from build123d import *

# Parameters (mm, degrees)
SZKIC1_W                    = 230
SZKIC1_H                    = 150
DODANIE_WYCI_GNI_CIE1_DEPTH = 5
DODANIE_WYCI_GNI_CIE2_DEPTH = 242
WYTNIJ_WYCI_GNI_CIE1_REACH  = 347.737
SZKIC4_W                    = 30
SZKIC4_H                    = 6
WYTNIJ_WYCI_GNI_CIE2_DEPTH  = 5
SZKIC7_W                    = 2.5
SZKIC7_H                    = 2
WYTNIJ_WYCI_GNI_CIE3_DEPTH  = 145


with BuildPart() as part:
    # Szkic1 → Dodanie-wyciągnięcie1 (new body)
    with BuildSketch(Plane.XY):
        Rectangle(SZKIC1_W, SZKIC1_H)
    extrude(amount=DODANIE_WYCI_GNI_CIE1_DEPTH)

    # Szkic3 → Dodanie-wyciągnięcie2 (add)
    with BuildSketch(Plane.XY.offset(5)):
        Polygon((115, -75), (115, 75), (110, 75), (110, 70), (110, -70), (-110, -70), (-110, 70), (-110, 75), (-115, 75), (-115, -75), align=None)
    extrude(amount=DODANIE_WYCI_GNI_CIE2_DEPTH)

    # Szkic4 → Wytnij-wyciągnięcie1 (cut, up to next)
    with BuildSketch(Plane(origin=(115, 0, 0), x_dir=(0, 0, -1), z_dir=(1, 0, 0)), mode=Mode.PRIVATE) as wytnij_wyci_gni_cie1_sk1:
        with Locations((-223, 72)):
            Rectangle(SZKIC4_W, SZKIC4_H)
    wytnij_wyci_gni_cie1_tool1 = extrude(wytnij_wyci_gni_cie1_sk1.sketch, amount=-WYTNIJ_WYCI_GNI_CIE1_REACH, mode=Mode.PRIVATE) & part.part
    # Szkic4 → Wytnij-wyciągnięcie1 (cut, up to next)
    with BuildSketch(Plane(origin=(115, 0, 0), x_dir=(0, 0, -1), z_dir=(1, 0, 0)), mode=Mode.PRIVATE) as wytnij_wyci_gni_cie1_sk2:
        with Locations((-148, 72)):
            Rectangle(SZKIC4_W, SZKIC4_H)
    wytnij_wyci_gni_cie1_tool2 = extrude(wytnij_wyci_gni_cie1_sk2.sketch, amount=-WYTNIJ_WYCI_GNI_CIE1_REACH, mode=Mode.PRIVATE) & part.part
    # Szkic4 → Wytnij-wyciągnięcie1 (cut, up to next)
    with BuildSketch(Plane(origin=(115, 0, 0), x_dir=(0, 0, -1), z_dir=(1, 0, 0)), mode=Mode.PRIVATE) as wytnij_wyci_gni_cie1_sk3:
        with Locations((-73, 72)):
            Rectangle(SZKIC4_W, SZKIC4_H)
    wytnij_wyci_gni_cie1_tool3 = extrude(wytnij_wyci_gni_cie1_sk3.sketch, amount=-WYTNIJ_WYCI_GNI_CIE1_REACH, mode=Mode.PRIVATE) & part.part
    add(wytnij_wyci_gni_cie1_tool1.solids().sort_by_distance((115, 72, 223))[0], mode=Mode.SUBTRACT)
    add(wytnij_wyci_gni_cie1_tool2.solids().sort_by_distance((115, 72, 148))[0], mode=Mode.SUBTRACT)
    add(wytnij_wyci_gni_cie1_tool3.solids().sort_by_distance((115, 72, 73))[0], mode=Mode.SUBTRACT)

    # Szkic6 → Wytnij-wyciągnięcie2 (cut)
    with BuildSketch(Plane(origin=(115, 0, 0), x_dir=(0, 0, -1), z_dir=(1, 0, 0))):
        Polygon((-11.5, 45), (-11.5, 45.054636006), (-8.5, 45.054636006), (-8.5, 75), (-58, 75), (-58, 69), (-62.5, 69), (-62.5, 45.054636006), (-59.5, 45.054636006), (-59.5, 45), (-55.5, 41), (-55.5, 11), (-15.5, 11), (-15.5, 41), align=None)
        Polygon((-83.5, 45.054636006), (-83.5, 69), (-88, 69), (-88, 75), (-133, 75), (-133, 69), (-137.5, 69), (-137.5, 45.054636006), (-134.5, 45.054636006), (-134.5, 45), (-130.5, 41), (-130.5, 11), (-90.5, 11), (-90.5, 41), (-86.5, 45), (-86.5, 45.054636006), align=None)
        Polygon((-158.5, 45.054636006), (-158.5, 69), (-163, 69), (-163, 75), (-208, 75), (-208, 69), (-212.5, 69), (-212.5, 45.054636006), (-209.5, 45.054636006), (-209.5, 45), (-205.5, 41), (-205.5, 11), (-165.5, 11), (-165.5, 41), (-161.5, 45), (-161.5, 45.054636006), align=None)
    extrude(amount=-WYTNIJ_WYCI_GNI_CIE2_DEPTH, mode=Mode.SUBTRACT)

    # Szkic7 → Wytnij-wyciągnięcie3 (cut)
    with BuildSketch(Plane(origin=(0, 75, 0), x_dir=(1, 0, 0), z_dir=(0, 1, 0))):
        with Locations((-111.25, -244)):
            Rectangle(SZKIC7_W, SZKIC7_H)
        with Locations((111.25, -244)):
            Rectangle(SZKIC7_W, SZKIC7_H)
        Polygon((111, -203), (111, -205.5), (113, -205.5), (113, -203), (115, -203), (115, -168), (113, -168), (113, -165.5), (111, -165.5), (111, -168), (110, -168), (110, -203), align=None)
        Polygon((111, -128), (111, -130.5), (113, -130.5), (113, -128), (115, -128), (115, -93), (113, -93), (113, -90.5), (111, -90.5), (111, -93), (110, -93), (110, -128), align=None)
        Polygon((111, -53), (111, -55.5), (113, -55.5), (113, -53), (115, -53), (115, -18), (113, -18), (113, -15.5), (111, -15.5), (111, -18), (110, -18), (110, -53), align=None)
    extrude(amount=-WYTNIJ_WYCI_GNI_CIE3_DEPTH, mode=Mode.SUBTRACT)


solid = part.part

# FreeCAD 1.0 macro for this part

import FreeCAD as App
import Part
import Sketcher
from FreeCAD import Vector


def add_polygon(sketch, points):
    """Adds a closed chain of lines whose ends are joined by coincident constraints."""
    first, n = sketch.GeometryCount, len(points)
    for a, b in zip(points, points[1:] + points[:1]):
        sketch.addGeometry(Part.LineSegment(App.Vector(*a, 0), App.Vector(*b, 0)), False)
    for i in range(n):
        sketch.addConstraint(Sketcher.Constraint("Coincident", first + i, 2, first + (i + 1) % n, 1))

doc = App.newDocument("Part")
body = doc.addObject("PartDesign::Body", "Body")

sketch1 = doc.addObject("Sketcher::SketchObject", "Sketch")
body.addObject(sketch1)
sketch1.AttachmentSupport = (doc.XY_Plane, [""])
sketch1.MapMode = "FlatFace"
add_polygon(sketch1, [(-115, 75), (-115, -75), (115, -75), (115, 75)])
sketch1.addConstraint([
    Sketcher.Constraint("Vertical", 0),
    Sketcher.Constraint("Horizontal", 1),
    Sketcher.Constraint("Vertical", 2),
    Sketcher.Constraint("Horizontal", 3),
    Sketcher.Constraint("Symmetric", 0, 2, 2, 2, -1, 1),
    Sketcher.Constraint("DistanceX", 1, 1, 1, 2, 230.0),
    Sketcher.Constraint("DistanceY", 0, 2, 0, 1, 150.0),
])
pad1 = doc.addObject("PartDesign::Pad", "Pad")
body.addObject(pad1)
pad1.Profile = sketch1
pad1.Length = 5

sketch2 = doc.addObject("Sketcher::SketchObject", "Sketch001")
body.addObject(sketch2)
sketch2.AttachmentSupport = (doc.XY_Plane, [""])
sketch2.MapMode = "FlatFace"
sketch2.AttachmentOffset = App.Placement(Vector(0, 0, 5), App.Rotation())
add_polygon(sketch2, [(115, -75), (115, 75), (110, 75), (110, -70), (-110, -70), (-110, 75), (-115, 75), (-115, -75)])
sketch2.addConstraint([
    Sketcher.Constraint("Vertical", 0),
    Sketcher.Constraint("Horizontal", 1),
    Sketcher.Constraint("Vertical", 2),
    Sketcher.Constraint("Horizontal", 3),
    Sketcher.Constraint("Vertical", 4),
    Sketcher.Constraint("Horizontal", 5),
    Sketcher.Constraint("Vertical", 6),
    Sketcher.Constraint("Horizontal", 7),
    Sketcher.Constraint("Symmetric", 0, 2, 6, 2, -1, 1),
    Sketcher.Constraint("Symmetric", 1, 2, 4, 2, -2),
    Sketcher.Constraint("DistanceX", 1, 2, 1, 1, 5.0),
    Sketcher.Constraint("DistanceX", 3, 2, 3, 1, 220.0),
    Sketcher.Constraint("DistanceY", 0, 1, 0, 2, 150.0),
    Sketcher.Constraint("DistanceY", 2, 2, 2, 1, 145.0),
])
pad2 = doc.addObject("PartDesign::Pad", "Pad001")
body.addObject(pad2)
pad2.Profile = sketch2
pad2.Length = 242

sketch3 = doc.addObject("Sketcher::SketchObject", "Sketch002")
body.addObject(sketch3)
sketch3.AttachmentSupport = (doc.YZ_Plane, [""])
sketch3.MapMode = "FlatFace"
sketch3.AttachmentOffset = App.Placement(Vector(0, 0, 115), App.Rotation())
add_polygon(sketch3, [(75, 238), (69, 238), (69, 208), (75, 208)])
sketch3.addConstraint([
    Sketcher.Constraint("Horizontal", 0),
    Sketcher.Constraint("Vertical", 1),
    Sketcher.Constraint("Horizontal", 2),
    Sketcher.Constraint("Vertical", 3),
    Sketcher.Constraint("DistanceX", 0, 2, 0, 1, 6.0),
    Sketcher.Constraint("DistanceY", 1, 2, 1, 1, 30.0),
    Sketcher.Constraint("DistanceX", -1, 1, 0, 2, 69.0),
    Sketcher.Constraint("DistanceY", -1, 1, 0, 2, 238.0),
])
pocket1 = doc.addObject("PartDesign::Pocket", "Pocket")
body.addObject(pocket1)
pocket1.Profile = sketch3
pocket1.Type = "UpToFirst"

sketch4 = doc.addObject("Sketcher::SketchObject", "Sketch003")
body.addObject(sketch4)
sketch4.AttachmentSupport = (doc.YZ_Plane, [""])
sketch4.MapMode = "FlatFace"
sketch4.AttachmentOffset = App.Placement(Vector(0, 0, 115), App.Rotation())
add_polygon(sketch4, [(75, 163), (69, 163), (69, 133), (75, 133)])
sketch4.addConstraint([
    Sketcher.Constraint("Horizontal", 0),
    Sketcher.Constraint("Vertical", 1),
    Sketcher.Constraint("Horizontal", 2),
    Sketcher.Constraint("Vertical", 3),
    Sketcher.Constraint("DistanceX", 0, 2, 0, 1, 6.0),
    Sketcher.Constraint("DistanceY", 1, 2, 1, 1, 30.0),
    Sketcher.Constraint("DistanceX", -1, 1, 0, 2, 69.0),
    Sketcher.Constraint("DistanceY", -1, 1, 0, 2, 163.0),
])
pocket2 = doc.addObject("PartDesign::Pocket", "Pocket001")
body.addObject(pocket2)
pocket2.Profile = sketch4
pocket2.Type = "UpToFirst"

sketch5 = doc.addObject("Sketcher::SketchObject", "Sketch004")
body.addObject(sketch5)
sketch5.AttachmentSupport = (doc.YZ_Plane, [""])
sketch5.MapMode = "FlatFace"
sketch5.AttachmentOffset = App.Placement(Vector(0, 0, 115), App.Rotation())
add_polygon(sketch5, [(75, 88), (69, 88), (69, 58), (75, 58)])
sketch5.addConstraint([
    Sketcher.Constraint("Horizontal", 0),
    Sketcher.Constraint("Vertical", 1),
    Sketcher.Constraint("Horizontal", 2),
    Sketcher.Constraint("Vertical", 3),
    Sketcher.Constraint("DistanceX", 0, 2, 0, 1, 6.0),
    Sketcher.Constraint("DistanceY", 1, 2, 1, 1, 30.0),
    Sketcher.Constraint("DistanceX", -1, 1, 0, 2, 69.0),
    Sketcher.Constraint("DistanceY", -1, 1, 0, 2, 88.0),
])
pocket3 = doc.addObject("PartDesign::Pocket", "Pocket002")
body.addObject(pocket3)
pocket3.Profile = sketch5
pocket3.Type = "UpToFirst"

sketch6 = doc.addObject("Sketcher::SketchObject", "Sketch005")
body.addObject(sketch6)
sketch6.AttachmentSupport = (doc.YZ_Plane, [""])
sketch6.MapMode = "FlatFace"
sketch6.AttachmentOffset = App.Placement(Vector(0, 0, 115), App.Rotation())
add_polygon(sketch6, [(45, 11.5), (45.054636, 11.5), (45.054636, 8.5), (75, 8.5), (75, 58), (69, 58), (69, 62.5), (45.054636, 62.5), (45.054636, 59.5), (45, 59.5), (41, 55.5), (11, 55.5), (11, 15.5), (41, 15.5)])
add_polygon(sketch6, [(45.054636, 83.5), (69, 83.5), (69, 88), (75, 88), (75, 133), (69, 133), (69, 137.5), (45.054636, 137.5), (45.054636, 134.5), (45, 134.5), (41, 130.5), (11, 130.5), (11, 90.5), (41, 90.5), (45, 86.5), (45.054636, 86.5)])
add_polygon(sketch6, [(45.054636, 158.5), (69, 158.5), (69, 163), (75, 163), (75, 208), (69, 208), (69, 212.5), (45.054636, 212.5), (45.054636, 209.5), (45, 209.5), (41, 205.5), (11, 205.5), (11, 165.5), (41, 165.5), (45, 161.5), (45.054636, 161.5)])
sketch6.addConstraint([
    Sketcher.Constraint("Horizontal", 0),
    Sketcher.Constraint("Vertical", 1),
    Sketcher.Constraint("Horizontal", 2),
    Sketcher.Constraint("Vertical", 3),
    Sketcher.Constraint("Horizontal", 4),
    Sketcher.Constraint("Vertical", 5),
    Sketcher.Constraint("Horizontal", 6),
    Sketcher.Constraint("Vertical", 7),
    Sketcher.Constraint("Horizontal", 8),
    Sketcher.Constraint("Horizontal", 10),
    Sketcher.Constraint("Vertical", 11),
    Sketcher.Constraint("Horizontal", 12),
    Sketcher.Constraint("Horizontal", 14),
    Sketcher.Constraint("Vertical", 15),
    Sketcher.Constraint("Horizontal", 16),
    Sketcher.Constraint("Vertical", 17),
    Sketcher.Constraint("Horizontal", 18),
    Sketcher.Constraint("Vertical", 19),
    Sketcher.Constraint("Horizontal", 20),
    Sketcher.Constraint("Vertical", 21),
    Sketcher.Constraint("Horizontal", 22),
    Sketcher.Constraint("Horizontal", 24),
    Sketcher.Constraint("Vertical", 25),
    Sketcher.Constraint("Horizontal", 26),
    Sketcher.Constraint("Horizontal", 28),
    Sketcher.Constraint("Vertical", 29),
    Sketcher.Constraint("Horizontal", 30),
    Sketcher.Constraint("Vertical", 31),
    Sketcher.Constraint("Horizontal", 32),
    Sketcher.Constraint("Vertical", 33),
    Sketcher.Constraint("Horizontal", 34),
    Sketcher.Constraint("Vertical", 35),
    Sketcher.Constraint("Horizontal", 36),
    Sketcher.Constraint("Vertical", 37),
    Sketcher.Constraint("Horizontal", 38),
    Sketcher.Constraint("Horizontal", 40),
    Sketcher.Constraint("Vertical", 41),
    Sketcher.Constraint("Horizontal", 42),
    Sketcher.Constraint("Horizontal", 44),
    Sketcher.Constraint("Vertical", 45),
    Sketcher.Constraint("Perpendicular", 9, 13),
    Sketcher.Constraint("Perpendicular", 13, 23),
    Sketcher.Constraint("Perpendicular", 23, 27),
    Sketcher.Constraint("Perpendicular", 27, 39),
    Sketcher.Constraint("Perpendicular", 39, 43),
    Sketcher.Constraint("Vertical", 1, 2, 6, 2),
    Sketcher.Constraint("Vertical", 9, 2, 12, 2),
    Sketcher.Constraint("Vertical", 8, 2, 13, 2),
    Sketcher.Constraint("Vertical", 5, 2, 14, 2),
    Sketcher.Constraint("Vertical", 3, 2, 16, 2),
    Sketcher.Constraint("Vertical", 15, 2, 18, 2),
    Sketcher.Constraint("Vertical", 7, 2, 20, 2),
    Sketcher.Constraint("Vertical", 13, 2, 22, 2),
    Sketcher.Constraint("Vertical", 12, 2, 23, 2),
    Sketcher.Constraint("Vertical", 11, 2, 24, 2),
    Sketcher.Constraint("Vertical", 23, 2, 26, 2),
    Sketcher.Constraint("Vertical", 22, 2, 27, 2),
    Sketcher.Constraint("Vertical", 21, 2, 28, 2),
    Sketcher.Constraint("Vertical", 19, 2, 30, 2),
    Sketcher.Constraint("Vertical", 17, 2, 32, 2),
    Sketcher.Constraint("Vertical", 31, 2, 34, 2),
    Sketcher.Constraint("Vertical", 29, 2, 36, 2),
    Sketcher.Constraint("Vertical", 27, 2, 38, 2),
    Sketcher.Constraint("Vertical", 26, 2, 39, 2),
    Sketcher.Constraint("Vertical", 25, 2, 40, 2),
    Sketcher.Constraint("Vertical", 39, 2, 42, 2),
    Sketcher.Constraint("Vertical", 38, 2, 43, 2),
    Sketcher.Constraint("Vertical", 37, 2, 44, 2),
    Sketcher.Constraint("Equal", 1, 7),
    Sketcher.Constraint("Equal", 5, 15),
    Sketcher.Constraint("Equal", 15, 19),
    Sketcher.Constraint("Equal", 7, 21),
    Sketcher.Constraint("Equal", 11, 25),
    Sketcher.Constraint("Equal", 21, 29),
    Sketcher.Constraint("Equal", 19, 31),
    Sketcher.Constraint("Equal", 17, 33),
    Sketcher.Constraint("Equal", 31, 35),
    Sketcher.Constraint("Equal", 29, 37),
    Sketcher.Constraint("Equal", 25, 41),
    Sketcher.Constraint("Equal", 9, 13),
    Sketcher.Constraint("DistanceX", 4, 2, 4, 1, 6.0),
    Sketcher.Constraint("DistanceX", 10, 2, 10, 1, 30.0),
    Sketcher.Constraint("DistanceY", 1, 2, 1, 1, 3.0),
    Sketcher.Constraint("DistanceY", 11, 2, 11, 1, 40.0),
    Sketcher.Constraint("DistanceY", 17, 1, 17, 2, 45.0),
    Sketcher.Constraint("DistanceY", 3, 1, 3, 2, 49.5),
    Sketcher.Constraint("DistanceX", -1, 1, 2, 2, 75.0),
    Sketcher.Constraint("DistanceY", -1, 1, 3, 2, 58.0),
    Sketcher.Constraint("DistanceX", -1, 1, 8, 2, 45.0),
    Sketcher.Constraint("DistanceY", -1, 1, 15, 2, 88.0),
    Sketcher.Constraint("DistanceY", -1, 1, 31, 2, 163.0),
    Sketcher.Constraint("DistanceX", 0, 1, 0, 2, 0.054636),
])
pocket4 = doc.addObject("PartDesign::Pocket", "Pocket003")
body.addObject(pocket4)
pocket4.Profile = sketch6
pocket4.Length = 5

sketch7 = doc.addObject("Sketcher::SketchObject", "Sketch006")
body.addObject(sketch7)
sketch7.AttachmentSupport = (doc.XZ_Plane, [""])
sketch7.MapMode = "FlatFace"
sketch7.AttachmentOffset = App.Placement(Vector(0, 0, -75), App.Rotation())
add_polygon(sketch7, [(-112.5, 243), (-112.5, 245), (-110, 245), (-110, 243)])
add_polygon(sketch7, [(110, 243), (110, 245), (112.5, 245), (112.5, 243)])
add_polygon(sketch7, [(111, 203), (111, 205.5), (113, 205.5), (113, 203), (115, 203), (115, 168), (113, 168), (113, 165.5), (111, 165.5), (111, 168), (110, 168), (110, 203)])
add_polygon(sketch7, [(111, 128), (111, 130.5), (113, 130.5), (113, 128), (115, 128), (115, 93), (113, 93), (113, 90.5), (111, 90.5), (111, 93), (110, 93), (110, 128)])
add_polygon(sketch7, [(111, 53), (111, 55.5), (113, 55.5), (113, 53), (115, 53), (115, 18), (113, 18), (113, 15.5), (111, 15.5), (111, 18), (110, 18), (110, 53)])
sketch7.addConstraint([
    Sketcher.Constraint("Vertical", 0),
    Sketcher.Constraint("Horizontal", 1),
    Sketcher.Constraint("Vertical", 2),
    Sketcher.Constraint("Horizontal", 3),
    Sketcher.Constraint("Vertical", 4),
    Sketcher.Constraint("Horizontal", 5),
    Sketcher.Constraint("Vertical", 6),
    Sketcher.Constraint("Horizontal", 7),
    Sketcher.Constraint("Vertical", 8),
    Sketcher.Constraint("Horizontal", 9),
    Sketcher.Constraint("Vertical", 10),
    Sketcher.Constraint("Horizontal", 11),
    Sketcher.Constraint("Vertical", 12),
    Sketcher.Constraint("Horizontal", 13),
    Sketcher.Constraint("Vertical", 14),
    Sketcher.Constraint("Horizontal", 15),
    Sketcher.Constraint("Vertical", 16),
    Sketcher.Constraint("Horizontal", 17),
    Sketcher.Constraint("Vertical", 18),
    Sketcher.Constraint("Horizontal", 19),
    Sketcher.Constraint("Vertical", 20),
    Sketcher.Constraint("Horizontal", 21),
    Sketcher.Constraint("Vertical", 22),
    Sketcher.Constraint("Horizontal", 23),
    Sketcher.Constraint("Vertical", 24),
    Sketcher.Constraint("Horizontal", 25),
    Sketcher.Constraint("Vertical", 26),
    Sketcher.Constraint("Horizontal", 27),
    Sketcher.Constraint("Vertical", 28),
    Sketcher.Constraint("Horizontal", 29),
    Sketcher.Constraint("Vertical", 30),
    Sketcher.Constraint("Horizontal", 31),
    Sketcher.Constraint("Vertical", 32),
    Sketcher.Constraint("Horizontal", 33),
    Sketcher.Constraint("Vertical", 34),
    Sketcher.Constraint("Horizontal", 35),
    Sketcher.Constraint("Vertical", 36),
    Sketcher.Constraint("Horizontal", 37),
    Sketcher.Constraint("Vertical", 38),
    Sketcher.Constraint("Horizontal", 39),
    Sketcher.Constraint("Vertical", 40),
    Sketcher.Constraint("Horizontal", 41),
    Sketcher.Constraint("Vertical", 42),
    Sketcher.Constraint("Horizontal", 43),
    Sketcher.Constraint("Symmetric", 1, 2, 4, 2, -2),
    Sketcher.Constraint("Symmetric", 3, 2, 6, 2, -2),
    Sketcher.Constraint("Horizontal", 13, 2, 16, 2),
    Sketcher.Constraint("Horizontal", 11, 2, 18, 2),
    Sketcher.Constraint("Horizontal", 25, 2, 28, 2),
    Sketcher.Constraint("Horizontal", 23, 2, 30, 2),
    Sketcher.Constraint("Horizontal", 37, 2, 40, 2),
    Sketcher.Constraint("Horizontal", 35, 2, 42, 2),
    Sketcher.Constraint("Vertical", 10, 2, 13, 2),
    Sketcher.Constraint("Vertical", 8, 2, 15, 2),
    Sketcher.Constraint("Vertical", 7, 2, 17, 2),
    Sketcher.Constraint("Vertical", 19, 2, 20, 2),
    Sketcher.Constraint("Vertical", 14, 2, 21, 2),
    Sketcher.Constraint("Vertical", 12, 2, 23, 2),
    Sketcher.Constraint("Vertical", 22, 2, 25, 2),
    Sketcher.Constraint("Vertical", 20, 2, 27, 2),
    Sketcher.Constraint("Vertical", 18, 2, 29, 2),
    Sketcher.Constraint("Vertical", 31, 2, 32, 2),
    Sketcher.Constraint("Vertical", 26, 2, 33, 2),
    Sketcher.Constraint("Vertical", 24, 2, 35, 2),
    Sketcher.Constraint("Vertical", 34, 2, 37, 2),
    Sketcher.Constraint("Vertical", 32, 2, 39, 2),
    Sketcher.Constraint("Vertical", 30, 2, 41, 2),
    Sketcher.Constraint("Equal", 9, 11),
    Sketcher.Constraint("Equal", 39, 0),
    Sketcher.Constraint("Equal", 7, 8),
    Sketcher.Constraint("Equal", 10, 14),
    Sketcher.Constraint("Equal", 16, 20),
    Sketcher.Constraint("Equal", 18, 24),
    Sketcher.Constraint("Equal", 22, 26),
    Sketcher.Constraint("Equal", 28, 32),
    Sketcher.Constraint("Equal", 30, 36),
    Sketcher.Constraint("Equal", 34, 38),
    Sketcher.Constraint("DistanceX", 9, 1, 9, 2, 2.0),
    Sketcher.Constraint("DistanceX", 17, 2, 17, 1, 1.0),
    Sketcher.Constraint("DistanceY", 12, 2, 12, 1, 35.0),
    Sketcher.Constraint("DistanceX", 1, 1, 1, 2, 2.5),
    Sketcher.Constraint("DistanceY", -1, 1, 0, 2, 245.0),
    Sketcher.Constraint("DistanceX", 1, 2, -1, 1, 110.0),
    Sketcher.Constraint("DistanceY", -1, 1, 10, 2, 203.0),
    Sketcher.Constraint("DistanceY", -1, 1, 22, 2, 128.0),
    Sketcher.Constraint("DistanceY", -1, 1, 34, 2, 53.0),
])
pocket5 = doc.addObject("PartDesign::Pocket", "Pocket004")
body.addObject(pocket5)
pocket5.Profile = sketch7
pocket5.Length = 145
pocket5.Reversed = True

doc.recompute()
